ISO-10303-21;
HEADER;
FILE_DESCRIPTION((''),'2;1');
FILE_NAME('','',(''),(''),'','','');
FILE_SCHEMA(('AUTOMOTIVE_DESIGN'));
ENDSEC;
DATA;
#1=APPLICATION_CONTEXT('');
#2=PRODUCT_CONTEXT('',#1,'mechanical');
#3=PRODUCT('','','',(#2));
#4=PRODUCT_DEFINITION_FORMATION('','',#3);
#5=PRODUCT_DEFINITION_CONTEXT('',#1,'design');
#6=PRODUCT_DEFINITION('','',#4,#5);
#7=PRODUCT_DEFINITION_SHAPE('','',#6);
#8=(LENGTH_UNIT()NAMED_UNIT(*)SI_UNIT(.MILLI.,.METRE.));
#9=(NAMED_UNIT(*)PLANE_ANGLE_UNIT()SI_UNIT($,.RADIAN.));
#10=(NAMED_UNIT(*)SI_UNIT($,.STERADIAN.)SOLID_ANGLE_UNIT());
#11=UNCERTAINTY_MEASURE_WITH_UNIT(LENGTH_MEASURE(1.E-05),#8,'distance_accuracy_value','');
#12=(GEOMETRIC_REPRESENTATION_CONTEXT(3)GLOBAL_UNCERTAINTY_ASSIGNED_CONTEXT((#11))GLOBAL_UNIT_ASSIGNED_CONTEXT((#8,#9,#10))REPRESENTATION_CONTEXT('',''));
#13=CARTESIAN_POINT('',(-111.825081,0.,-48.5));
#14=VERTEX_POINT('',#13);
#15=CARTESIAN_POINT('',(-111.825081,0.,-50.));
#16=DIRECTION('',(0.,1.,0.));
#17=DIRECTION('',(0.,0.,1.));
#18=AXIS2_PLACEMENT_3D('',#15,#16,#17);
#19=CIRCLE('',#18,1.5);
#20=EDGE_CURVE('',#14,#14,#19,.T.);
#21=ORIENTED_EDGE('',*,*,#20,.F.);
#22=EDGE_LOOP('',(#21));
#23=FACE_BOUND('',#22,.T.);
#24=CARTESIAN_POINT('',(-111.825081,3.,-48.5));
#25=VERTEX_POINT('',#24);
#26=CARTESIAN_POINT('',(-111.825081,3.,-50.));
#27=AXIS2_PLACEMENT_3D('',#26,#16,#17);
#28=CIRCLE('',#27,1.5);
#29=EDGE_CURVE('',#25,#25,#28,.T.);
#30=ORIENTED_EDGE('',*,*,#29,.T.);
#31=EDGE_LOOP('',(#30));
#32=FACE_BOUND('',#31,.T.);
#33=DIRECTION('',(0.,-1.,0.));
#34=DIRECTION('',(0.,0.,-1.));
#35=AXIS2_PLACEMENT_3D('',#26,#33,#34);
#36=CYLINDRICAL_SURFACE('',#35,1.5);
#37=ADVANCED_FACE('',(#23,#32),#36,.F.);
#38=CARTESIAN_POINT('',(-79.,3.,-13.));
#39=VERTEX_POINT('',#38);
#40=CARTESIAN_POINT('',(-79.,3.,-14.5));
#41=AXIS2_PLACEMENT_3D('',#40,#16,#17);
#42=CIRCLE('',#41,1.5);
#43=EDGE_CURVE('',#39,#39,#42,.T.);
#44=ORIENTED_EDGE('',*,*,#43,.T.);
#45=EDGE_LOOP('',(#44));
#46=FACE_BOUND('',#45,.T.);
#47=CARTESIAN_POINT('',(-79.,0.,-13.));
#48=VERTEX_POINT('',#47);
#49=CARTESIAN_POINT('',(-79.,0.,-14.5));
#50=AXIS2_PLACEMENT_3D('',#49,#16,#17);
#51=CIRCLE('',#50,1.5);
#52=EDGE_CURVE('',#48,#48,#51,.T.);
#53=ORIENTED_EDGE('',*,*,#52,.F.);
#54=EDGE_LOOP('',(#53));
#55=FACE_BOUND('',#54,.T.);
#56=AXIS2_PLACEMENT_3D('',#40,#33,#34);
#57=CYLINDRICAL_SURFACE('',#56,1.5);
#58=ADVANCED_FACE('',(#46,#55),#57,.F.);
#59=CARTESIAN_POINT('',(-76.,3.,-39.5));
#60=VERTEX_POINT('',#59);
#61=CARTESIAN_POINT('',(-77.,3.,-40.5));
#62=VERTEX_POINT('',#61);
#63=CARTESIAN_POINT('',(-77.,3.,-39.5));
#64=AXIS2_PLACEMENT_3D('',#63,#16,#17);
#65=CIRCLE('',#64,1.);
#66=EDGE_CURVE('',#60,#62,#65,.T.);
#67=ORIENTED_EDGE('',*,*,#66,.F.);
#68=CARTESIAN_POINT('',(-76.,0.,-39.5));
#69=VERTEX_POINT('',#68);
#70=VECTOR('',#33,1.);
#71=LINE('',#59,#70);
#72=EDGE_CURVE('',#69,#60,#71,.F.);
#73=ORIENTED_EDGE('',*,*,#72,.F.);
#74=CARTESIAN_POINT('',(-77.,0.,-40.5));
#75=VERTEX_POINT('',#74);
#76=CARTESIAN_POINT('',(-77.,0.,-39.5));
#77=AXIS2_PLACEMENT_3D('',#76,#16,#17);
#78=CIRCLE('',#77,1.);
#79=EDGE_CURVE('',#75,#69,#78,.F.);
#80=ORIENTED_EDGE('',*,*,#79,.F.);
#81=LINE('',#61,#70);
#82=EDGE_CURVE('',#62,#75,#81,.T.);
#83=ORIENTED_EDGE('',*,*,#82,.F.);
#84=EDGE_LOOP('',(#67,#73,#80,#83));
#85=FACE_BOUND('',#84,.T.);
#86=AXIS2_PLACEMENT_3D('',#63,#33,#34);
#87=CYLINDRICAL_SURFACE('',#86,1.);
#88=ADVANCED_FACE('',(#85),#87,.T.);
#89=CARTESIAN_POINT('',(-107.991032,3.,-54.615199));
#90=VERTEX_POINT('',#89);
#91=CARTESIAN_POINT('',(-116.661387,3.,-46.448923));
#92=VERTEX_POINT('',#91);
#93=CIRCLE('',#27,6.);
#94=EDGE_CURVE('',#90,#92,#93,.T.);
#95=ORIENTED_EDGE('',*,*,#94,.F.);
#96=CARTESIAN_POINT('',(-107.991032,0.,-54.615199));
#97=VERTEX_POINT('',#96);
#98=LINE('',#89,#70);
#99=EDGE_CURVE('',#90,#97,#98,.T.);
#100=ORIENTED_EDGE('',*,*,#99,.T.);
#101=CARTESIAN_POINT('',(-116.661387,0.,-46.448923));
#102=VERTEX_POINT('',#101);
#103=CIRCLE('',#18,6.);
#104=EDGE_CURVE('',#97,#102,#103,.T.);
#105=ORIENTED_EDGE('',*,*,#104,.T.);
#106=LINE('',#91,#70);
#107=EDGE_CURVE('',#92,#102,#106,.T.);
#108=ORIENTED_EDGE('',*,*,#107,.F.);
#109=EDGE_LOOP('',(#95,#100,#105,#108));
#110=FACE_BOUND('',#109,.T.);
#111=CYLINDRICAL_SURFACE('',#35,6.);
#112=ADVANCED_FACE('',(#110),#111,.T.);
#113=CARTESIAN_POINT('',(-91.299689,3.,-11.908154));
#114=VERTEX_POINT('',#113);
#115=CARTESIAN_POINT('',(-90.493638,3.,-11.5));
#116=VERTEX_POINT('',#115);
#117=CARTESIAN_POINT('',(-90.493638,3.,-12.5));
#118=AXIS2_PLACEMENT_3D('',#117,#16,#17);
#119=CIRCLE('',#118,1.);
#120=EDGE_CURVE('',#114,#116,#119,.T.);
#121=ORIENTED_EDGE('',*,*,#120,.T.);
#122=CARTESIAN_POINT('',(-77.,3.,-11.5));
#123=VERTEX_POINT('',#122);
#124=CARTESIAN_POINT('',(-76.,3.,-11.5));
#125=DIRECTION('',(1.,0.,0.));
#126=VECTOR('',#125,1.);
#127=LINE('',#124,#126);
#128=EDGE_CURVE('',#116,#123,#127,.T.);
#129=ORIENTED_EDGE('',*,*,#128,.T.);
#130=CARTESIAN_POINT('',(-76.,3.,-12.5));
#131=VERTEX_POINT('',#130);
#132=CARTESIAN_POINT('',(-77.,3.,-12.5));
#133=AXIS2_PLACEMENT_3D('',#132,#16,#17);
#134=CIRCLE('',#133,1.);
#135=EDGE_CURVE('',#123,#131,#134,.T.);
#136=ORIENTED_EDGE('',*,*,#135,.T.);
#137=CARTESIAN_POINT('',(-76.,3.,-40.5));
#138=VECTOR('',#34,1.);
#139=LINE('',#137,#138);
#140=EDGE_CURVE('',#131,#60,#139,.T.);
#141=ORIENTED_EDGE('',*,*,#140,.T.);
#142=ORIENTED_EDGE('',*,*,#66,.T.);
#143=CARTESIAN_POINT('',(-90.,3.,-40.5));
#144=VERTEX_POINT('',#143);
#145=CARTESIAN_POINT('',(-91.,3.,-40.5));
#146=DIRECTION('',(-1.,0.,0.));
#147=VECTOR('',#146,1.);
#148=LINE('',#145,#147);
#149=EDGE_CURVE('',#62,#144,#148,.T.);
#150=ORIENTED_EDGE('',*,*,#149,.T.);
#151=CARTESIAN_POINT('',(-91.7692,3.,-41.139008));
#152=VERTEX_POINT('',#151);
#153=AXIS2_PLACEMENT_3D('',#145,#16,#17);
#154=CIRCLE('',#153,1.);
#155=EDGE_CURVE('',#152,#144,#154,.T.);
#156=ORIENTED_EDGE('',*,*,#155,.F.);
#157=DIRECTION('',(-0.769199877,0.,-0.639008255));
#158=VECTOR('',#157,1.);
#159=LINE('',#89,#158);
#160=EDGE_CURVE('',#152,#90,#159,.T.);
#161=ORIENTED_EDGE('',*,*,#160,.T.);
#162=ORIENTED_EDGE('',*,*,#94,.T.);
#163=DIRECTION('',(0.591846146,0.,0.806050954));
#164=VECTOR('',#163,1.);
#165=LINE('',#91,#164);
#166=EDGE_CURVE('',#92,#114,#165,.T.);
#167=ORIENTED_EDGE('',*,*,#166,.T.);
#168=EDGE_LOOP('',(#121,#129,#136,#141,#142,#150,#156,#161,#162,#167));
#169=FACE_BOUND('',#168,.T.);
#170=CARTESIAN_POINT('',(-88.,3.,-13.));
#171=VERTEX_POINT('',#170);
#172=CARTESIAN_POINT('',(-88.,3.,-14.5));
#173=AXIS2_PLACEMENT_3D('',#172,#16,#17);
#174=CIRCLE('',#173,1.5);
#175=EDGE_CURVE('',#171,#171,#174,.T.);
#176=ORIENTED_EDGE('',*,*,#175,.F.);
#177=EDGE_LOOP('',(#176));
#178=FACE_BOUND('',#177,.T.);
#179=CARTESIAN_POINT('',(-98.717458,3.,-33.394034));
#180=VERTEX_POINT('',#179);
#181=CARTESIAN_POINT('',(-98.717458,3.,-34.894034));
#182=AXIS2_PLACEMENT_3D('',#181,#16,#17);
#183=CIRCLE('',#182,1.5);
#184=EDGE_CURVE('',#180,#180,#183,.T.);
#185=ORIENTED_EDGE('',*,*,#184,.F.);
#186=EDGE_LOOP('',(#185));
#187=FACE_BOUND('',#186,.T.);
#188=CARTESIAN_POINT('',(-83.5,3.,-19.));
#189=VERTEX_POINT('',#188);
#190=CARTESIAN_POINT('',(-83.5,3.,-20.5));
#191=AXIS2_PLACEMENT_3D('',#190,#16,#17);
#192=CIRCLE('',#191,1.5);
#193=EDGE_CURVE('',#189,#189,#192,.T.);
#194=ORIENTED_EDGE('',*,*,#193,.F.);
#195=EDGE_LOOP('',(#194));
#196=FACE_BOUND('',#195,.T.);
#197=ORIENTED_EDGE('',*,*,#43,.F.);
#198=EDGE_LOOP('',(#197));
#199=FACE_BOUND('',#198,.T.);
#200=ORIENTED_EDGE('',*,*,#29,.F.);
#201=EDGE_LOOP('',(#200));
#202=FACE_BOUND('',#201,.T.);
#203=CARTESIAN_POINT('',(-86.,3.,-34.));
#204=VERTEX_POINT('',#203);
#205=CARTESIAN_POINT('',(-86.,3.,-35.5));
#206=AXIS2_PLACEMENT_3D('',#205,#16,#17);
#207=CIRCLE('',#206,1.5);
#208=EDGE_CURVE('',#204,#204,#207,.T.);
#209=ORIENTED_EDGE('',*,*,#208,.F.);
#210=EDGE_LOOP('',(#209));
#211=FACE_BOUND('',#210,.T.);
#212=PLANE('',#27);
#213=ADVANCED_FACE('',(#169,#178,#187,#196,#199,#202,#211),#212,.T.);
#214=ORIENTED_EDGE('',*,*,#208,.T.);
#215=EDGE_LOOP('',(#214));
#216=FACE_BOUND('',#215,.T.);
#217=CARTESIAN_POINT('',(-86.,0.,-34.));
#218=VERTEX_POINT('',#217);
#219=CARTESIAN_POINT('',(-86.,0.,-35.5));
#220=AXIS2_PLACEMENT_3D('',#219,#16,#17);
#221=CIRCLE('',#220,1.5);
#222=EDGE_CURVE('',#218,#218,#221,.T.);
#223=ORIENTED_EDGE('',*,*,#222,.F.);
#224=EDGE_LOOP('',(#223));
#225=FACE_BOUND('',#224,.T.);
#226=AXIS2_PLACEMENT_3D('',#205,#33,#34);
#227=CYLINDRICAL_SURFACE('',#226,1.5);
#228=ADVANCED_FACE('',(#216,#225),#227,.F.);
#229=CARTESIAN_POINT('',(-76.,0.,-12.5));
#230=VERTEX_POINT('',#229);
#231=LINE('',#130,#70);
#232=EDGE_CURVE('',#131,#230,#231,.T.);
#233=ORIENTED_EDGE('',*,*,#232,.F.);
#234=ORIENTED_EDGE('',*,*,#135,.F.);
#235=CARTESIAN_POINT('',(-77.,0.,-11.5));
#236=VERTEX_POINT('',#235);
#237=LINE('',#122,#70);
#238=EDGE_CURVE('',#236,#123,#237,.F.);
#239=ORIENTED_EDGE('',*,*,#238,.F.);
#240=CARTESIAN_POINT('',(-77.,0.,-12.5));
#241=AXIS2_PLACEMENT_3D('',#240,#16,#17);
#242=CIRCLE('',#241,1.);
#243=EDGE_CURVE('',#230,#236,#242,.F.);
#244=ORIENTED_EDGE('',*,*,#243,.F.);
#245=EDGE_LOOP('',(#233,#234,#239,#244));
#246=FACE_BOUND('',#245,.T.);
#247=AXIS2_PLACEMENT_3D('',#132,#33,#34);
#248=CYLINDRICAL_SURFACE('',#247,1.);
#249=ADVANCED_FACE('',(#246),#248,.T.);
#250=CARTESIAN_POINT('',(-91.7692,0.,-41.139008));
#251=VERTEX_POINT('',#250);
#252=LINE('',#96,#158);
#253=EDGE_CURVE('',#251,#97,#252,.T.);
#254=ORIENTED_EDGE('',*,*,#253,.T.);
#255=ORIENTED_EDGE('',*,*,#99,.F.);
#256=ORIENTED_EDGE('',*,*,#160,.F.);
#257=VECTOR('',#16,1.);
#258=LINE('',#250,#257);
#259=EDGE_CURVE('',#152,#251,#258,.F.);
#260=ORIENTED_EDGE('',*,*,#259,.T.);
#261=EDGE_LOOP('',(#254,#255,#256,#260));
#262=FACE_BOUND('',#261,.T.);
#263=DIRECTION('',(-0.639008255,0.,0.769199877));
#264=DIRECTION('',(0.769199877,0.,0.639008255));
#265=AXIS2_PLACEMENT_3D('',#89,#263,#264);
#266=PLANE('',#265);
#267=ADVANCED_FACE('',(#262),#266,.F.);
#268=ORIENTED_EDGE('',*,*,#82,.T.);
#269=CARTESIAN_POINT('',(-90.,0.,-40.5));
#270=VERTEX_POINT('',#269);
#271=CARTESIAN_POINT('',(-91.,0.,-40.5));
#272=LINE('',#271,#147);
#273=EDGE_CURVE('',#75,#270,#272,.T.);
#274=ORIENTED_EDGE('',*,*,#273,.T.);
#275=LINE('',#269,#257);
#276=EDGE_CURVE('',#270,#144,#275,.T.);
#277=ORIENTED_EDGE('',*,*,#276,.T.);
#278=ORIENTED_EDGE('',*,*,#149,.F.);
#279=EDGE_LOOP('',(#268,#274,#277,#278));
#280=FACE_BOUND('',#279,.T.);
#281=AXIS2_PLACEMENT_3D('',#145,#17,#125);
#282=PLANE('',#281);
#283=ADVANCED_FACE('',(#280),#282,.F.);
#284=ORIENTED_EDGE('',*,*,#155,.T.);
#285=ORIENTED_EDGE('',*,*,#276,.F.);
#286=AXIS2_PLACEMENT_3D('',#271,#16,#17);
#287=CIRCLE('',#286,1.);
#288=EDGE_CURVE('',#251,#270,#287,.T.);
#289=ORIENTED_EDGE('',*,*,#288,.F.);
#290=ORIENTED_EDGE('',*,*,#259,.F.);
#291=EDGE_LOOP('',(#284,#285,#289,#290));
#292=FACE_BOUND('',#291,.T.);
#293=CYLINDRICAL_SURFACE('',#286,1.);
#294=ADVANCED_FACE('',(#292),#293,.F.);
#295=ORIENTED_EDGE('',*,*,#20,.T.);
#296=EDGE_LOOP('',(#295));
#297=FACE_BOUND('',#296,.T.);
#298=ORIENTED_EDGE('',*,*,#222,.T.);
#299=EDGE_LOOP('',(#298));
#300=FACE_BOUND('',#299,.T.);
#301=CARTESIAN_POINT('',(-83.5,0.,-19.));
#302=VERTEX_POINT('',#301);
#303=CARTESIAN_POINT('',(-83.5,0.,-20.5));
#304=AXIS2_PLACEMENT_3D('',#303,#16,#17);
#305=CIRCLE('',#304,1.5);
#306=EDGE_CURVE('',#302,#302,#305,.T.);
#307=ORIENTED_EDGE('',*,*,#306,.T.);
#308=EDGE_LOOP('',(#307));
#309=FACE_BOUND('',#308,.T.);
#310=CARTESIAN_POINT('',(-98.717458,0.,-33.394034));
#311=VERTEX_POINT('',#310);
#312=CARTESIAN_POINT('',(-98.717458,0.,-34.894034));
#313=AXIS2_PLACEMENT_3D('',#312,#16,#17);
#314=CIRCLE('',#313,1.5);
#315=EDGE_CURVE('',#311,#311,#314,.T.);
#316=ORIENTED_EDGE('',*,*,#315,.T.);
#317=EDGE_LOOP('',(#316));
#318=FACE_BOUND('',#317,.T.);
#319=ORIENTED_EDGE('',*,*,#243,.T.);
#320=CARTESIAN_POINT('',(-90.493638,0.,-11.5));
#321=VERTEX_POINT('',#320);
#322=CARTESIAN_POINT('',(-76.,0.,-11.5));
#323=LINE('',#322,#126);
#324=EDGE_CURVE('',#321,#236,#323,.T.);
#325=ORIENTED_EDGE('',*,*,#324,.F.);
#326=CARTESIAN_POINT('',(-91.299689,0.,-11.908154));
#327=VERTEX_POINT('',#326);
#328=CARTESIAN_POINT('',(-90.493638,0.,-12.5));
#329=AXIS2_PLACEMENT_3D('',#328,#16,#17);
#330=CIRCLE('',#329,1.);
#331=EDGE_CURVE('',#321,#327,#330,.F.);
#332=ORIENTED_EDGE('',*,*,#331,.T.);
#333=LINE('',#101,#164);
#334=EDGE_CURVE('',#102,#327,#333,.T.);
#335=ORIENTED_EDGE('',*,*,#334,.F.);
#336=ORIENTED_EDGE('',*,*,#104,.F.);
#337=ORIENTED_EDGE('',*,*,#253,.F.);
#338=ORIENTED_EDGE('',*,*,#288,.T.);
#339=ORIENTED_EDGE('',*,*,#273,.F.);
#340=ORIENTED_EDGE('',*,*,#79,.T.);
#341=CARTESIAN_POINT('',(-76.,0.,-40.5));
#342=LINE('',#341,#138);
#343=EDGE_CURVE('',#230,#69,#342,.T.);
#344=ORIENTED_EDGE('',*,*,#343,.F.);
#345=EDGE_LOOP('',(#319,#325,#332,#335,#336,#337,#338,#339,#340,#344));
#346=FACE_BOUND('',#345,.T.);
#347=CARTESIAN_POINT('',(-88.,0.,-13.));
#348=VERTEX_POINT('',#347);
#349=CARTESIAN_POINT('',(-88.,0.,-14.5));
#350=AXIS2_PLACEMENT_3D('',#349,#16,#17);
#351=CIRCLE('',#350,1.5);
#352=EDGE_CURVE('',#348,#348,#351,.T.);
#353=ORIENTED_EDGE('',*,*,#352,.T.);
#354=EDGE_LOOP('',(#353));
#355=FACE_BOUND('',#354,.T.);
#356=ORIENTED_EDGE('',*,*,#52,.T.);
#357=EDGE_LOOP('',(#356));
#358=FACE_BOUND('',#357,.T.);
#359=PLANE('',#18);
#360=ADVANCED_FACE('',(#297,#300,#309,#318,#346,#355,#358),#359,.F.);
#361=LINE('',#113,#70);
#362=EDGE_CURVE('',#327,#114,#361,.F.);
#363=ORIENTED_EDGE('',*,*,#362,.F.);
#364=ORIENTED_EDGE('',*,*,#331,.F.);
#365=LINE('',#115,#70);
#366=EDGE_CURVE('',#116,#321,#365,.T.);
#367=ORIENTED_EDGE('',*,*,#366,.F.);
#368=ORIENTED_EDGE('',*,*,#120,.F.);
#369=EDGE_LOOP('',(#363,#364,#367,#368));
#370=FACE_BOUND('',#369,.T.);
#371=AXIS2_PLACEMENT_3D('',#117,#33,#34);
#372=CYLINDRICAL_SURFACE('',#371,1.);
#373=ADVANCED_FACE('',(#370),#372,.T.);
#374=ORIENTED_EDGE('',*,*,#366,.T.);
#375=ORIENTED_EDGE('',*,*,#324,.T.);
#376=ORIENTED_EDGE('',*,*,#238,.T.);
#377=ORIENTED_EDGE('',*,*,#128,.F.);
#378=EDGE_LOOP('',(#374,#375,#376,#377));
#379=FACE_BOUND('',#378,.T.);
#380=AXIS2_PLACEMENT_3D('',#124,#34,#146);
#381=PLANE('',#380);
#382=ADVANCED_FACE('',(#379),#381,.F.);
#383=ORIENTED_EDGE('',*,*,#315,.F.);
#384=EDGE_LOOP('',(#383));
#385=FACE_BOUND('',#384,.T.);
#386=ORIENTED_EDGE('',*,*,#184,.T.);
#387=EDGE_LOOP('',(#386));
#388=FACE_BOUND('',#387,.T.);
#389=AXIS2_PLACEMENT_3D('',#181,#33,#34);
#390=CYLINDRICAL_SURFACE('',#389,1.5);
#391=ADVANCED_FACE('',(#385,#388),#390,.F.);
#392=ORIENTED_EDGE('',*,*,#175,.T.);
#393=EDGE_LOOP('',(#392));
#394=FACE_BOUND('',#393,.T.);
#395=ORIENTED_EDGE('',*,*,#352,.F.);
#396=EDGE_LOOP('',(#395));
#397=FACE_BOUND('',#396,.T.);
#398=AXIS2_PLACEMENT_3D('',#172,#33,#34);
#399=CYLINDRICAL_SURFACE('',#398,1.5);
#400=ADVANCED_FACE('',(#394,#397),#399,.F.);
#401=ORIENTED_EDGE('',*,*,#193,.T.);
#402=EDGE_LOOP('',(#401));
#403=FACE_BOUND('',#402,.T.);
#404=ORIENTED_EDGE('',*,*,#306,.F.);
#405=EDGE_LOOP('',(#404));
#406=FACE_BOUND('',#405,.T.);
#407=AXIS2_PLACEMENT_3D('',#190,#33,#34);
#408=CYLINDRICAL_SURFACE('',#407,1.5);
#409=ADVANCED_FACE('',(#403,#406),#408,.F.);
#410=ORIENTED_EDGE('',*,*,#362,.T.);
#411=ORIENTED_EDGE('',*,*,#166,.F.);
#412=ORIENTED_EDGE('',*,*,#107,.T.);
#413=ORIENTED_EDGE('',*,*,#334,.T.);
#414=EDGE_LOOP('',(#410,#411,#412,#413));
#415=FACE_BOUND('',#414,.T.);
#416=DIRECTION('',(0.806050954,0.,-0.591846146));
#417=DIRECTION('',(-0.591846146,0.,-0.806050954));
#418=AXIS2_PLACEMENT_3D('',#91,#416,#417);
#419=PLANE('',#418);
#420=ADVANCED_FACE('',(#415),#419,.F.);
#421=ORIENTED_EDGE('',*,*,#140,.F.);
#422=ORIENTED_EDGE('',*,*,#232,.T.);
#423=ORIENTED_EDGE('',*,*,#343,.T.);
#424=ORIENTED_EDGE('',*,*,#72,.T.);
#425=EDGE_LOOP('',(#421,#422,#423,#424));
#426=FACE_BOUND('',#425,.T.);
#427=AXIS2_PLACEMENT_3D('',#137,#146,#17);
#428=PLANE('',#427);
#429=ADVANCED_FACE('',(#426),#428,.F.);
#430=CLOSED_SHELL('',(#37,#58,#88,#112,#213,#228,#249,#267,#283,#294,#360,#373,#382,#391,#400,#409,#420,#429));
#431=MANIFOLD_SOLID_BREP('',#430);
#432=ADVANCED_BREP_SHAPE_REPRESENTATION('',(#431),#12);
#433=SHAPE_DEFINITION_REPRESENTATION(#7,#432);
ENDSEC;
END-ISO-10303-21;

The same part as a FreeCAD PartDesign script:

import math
import FreeCAD as App
import Part
import Sketcher


def edges_at(feature, points):
    """Names of the edges that pass closest to the given points."""
    edges = feature.Shape.Edges
    near = lambda p: min(range(len(edges)), key=lambda i: edges[i].distToShape(Part.Vertex(*p))[0])
    return sorted({f"Edge{near(p) + 1}" for p in points})

doc = App.newDocument("Part")
body = doc.addObject("PartDesign::Body", "Body")

sketch1 = body.newObject("Sketcher::SketchObject", "Sketch")
sketch1.AttachmentSupport = (doc.getObject("XZ_Plane"), [""])
sketch1.MapMode = "FlatFace"
sketch1.addGeometry([
    Part.LineSegment(App.Vector(-91, -40.5, 0), App.Vector(-107.991032, -54.615199, 0)),
    Part.ArcOfCircle(Part.Circle(App.Vector(-111.825081, -50, 0), App.Vector(0, 0, 1), 6), math.radians(143.711874), math.radians(309.717907)),
    Part.LineSegment(App.Vector(-116.661387, -46.448923, 0), App.Vector(-91, -11.5, 0)),
    Part.LineSegment(App.Vector(-91, -11.5, 0), App.Vector(-76, -11.5, 0)),
    Part.LineSegment(App.Vector(-76, -11.5, 0), App.Vector(-76, -40.5, 0)),
    Part.LineSegment(App.Vector(-76, -40.5, 0), App.Vector(-91, -40.5, 0)),
    Part.Circle(App.Vector(-79, -14.5, 0), App.Vector(0, 0, 1), 1.5),
    Part.Circle(App.Vector(-83.5, -20.5, 0), App.Vector(0, 0, 1), 1.5),
    Part.Circle(App.Vector(-88, -14.5, 0), App.Vector(0, 0, 1), 1.5),
    Part.Circle(App.Vector(-86, -35.5, 0), App.Vector(0, 0, 1), 1.5),
    Part.Circle(App.Vector(-98.717458, -34.894034, 0), App.Vector(0, 0, 1), 1.5),
    Part.Circle(App.Vector(-111.825081, -50, 0), App.Vector(0, 0, 1), 1.5),
], False)
sketch1.addConstraint([
    Sketcher.Constraint("Tangent", 0, 2, 1, 2),
    Sketcher.Constraint("Tangent", 1, 1, 2, 1),
    Sketcher.Constraint("Coincident", 2, 2, 3, 1),
    Sketcher.Constraint("Coincident", 3, 2, 4, 1),
    Sketcher.Constraint("Coincident", 4, 2, 5, 1),
    Sketcher.Constraint("Coincident", 5, 2, 0, 1),
    Sketcher.Constraint("Horizontal", 3),
    Sketcher.Constraint("Vertical", 4),
    Sketcher.Constraint("Horizontal", 5),
    Sketcher.Constraint("Coincident", 11, 3, 1, 3),
    Sketcher.Constraint("Equal", 6, 7),
    Sketcher.Constraint("Equal", 7, 8),
    Sketcher.Constraint("Equal", 8, 9),
    Sketcher.Constraint("Equal", 9, 10),
    Sketcher.Constraint("Equal", 10, 11),
    Sketcher.Constraint("Horizontal", 6, 3, 8, 3),
    Sketcher.Constraint("Vertical", 2, 2, 5, 2),
    Sketcher.Constraint("Diameter", 6, 3.0),
    Sketcher.Constraint("Radius", 1, 6.0),
    Sketcher.Constraint("DistanceX", 3, 1, 3, 2, 15.0),
    Sketcher.Constraint("DistanceY", 4, 2, 4, 1, 29.0),
    Sketcher.Constraint("DistanceY", 1, 3, -1, 1, 50.0),
    Sketcher.Constraint("DistanceX", 6, 3, -1, 1, 79.0),
    Sketcher.Constraint("DistanceX", 8, 3, -1, 1, 88.0),
    Sketcher.Constraint("DistanceX", 9, 3, -1, 1, 86.0),
    Sketcher.Constraint("DistanceX", 2, 2, -1, 1, 91.0),
    Sketcher.Constraint("DistanceY", 7, 3, 6, 3, 6.0),
    Sketcher.Constraint("DistanceY", 9, 3, 7, 3, 15.0),
    Sketcher.Constraint("DistanceY", 8, 3, 2, 2, 3.0),
    Sketcher.Constraint("DistanceY", 6, 3, -1, 1, 14.5),
    Sketcher.Constraint("DistanceX", 7, 3, -1, 1, 83.5),
    Sketcher.Constraint("DistanceY", 0, 2, -1, 1, 54.615199),
    Sketcher.Constraint("DistanceX", 1, 1, 10, 3, 17.943929),
    Sketcher.Constraint("DistanceY", 1, 1, 10, 3, 11.554889),
])
pad1 = body.newObject("PartDesign::Pad", "Pad")
pad1.Profile = sketch1
pad1.Length = 3
pad1.Reversed = True

sketch2 = body.newObject("Sketcher::SketchObject", "Sketch001")
sketch2.AttachmentSupport = (doc.getObject("XZ_Plane"), [""])
sketch2.MapMode = "FlatFace"
sketch2.AttachmentOffset = App.Placement(App.Vector(0, 0, -3), App.Rotation())
sketch2.addGeometry(Part.Circle(App.Vector(-91, -40.5, 0), App.Vector(0, 0, 1), 1), False)
sketch2.addConstraint([
    Sketcher.Constraint("Diameter", 0, 2.0),
    Sketcher.Constraint("DistanceX", 0, 3, -1, 1, 91.0),
    Sketcher.Constraint("DistanceY", 0, 3, -1, 1, 40.5),
])
pocket1 = body.newObject("PartDesign::Pocket", "Pocket")
pocket1.Profile = sketch2
pocket1.Type = "ThroughAll"
pocket1.Reversed = True
doc.recompute()

fillet = body.newObject("PartDesign::Fillet", "Fillet")
fillet.Base = (pocket1, edges_at(pocket1, [(-76, 1.5, -40.5), (-76, 1.5, -11.5), (-91, 1.5, -11.5)]))
fillet.Radius = 1

doc.recompute()
